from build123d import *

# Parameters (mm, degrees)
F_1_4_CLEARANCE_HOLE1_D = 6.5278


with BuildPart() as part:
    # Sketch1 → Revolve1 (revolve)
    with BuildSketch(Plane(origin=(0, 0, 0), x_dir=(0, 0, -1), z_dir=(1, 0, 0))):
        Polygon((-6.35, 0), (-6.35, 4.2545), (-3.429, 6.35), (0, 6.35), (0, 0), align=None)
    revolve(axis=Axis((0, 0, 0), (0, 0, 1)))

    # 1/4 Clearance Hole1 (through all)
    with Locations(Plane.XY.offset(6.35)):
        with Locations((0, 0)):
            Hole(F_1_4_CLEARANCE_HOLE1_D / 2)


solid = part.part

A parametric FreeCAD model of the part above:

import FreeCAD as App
import Part
import Sketcher
Q = App.Units.Quantity

doc = App.newDocument("Part")
body = doc.addObject("PartDesign::Body", "Body")

sketch1 = body.newObject("Sketcher::SketchObject", "Sketch")
sketch1.AttachmentSupport = (doc.getObject("YZ_Plane"), [""])
sketch1.MapMode = "FlatFace"
sketch1.addGeometry([
    Part.LineSegment(App.Vector(4.2545, 6.35, 0), App.Vector(0, 6.35, 0)),
    Part.LineSegment(App.Vector(0, 6.35, 0), App.Vector(0, 0, 0)),
    Part.LineSegment(App.Vector(0, 0, 0), App.Vector(6.35, 0, 0)),
    Part.LineSegment(App.Vector(6.35, 0, 0), App.Vector(6.35, 3.429, 0)),
    Part.LineSegment(App.Vector(6.35, 3.429, 0), App.Vector(4.2545, 6.35, 0)),
], False)
sketch1.addConstraint([
    Sketcher.Constraint("Coincident", 0, 2, 1, 1),
    Sketcher.Constraint("Coincident", 1, 2, 2, 1),
    Sketcher.Constraint("Coincident", 2, 2, 3, 1),
    Sketcher.Constraint("Coincident", 3, 2, 4, 1),
    Sketcher.Constraint("Coincident", 4, 2, 0, 1),
    Sketcher.Constraint("Horizontal", 0),
    Sketcher.Constraint("Vertical", 1),
    Sketcher.Constraint("Horizontal", 2),
    Sketcher.Constraint("Vertical", 3),
    Sketcher.Constraint("Coincident", 1, 2, -1, 1),
    Sketcher.Constraint("Equal", 2, 1),
    Sketcher.Constraint("DistanceX", 2, 1, 2, 2, Q("0.25 in")),
    Sketcher.Constraint("DistanceY", 3, 1, 3, 2, Q("0.135 in")),
    Sketcher.Constraint("DistanceX", 0, 2, 0, 1, Q("0.1675 in")),
])
revolution = body.newObject("PartDesign::Revolution", "Revolution")
revolution.Profile = sketch1
revolution.ReferenceAxis = (sketch1, ["V_Axis"])
revolution.Angle = 360

sketch2 = body.newObject("Sketcher::SketchObject", "Sketch001")
sketch2.AttachmentSupport = (doc.getObject("XY_Plane"), [""])
sketch2.MapMode = "FlatFace"
sketch2.AttachmentOffset = App.Placement(App.Vector(0, 0, 0.25 * 25.4), App.Rotation())
sketch2.addGeometry(Part.Circle(App.Vector(0, 0, 0), App.Vector(0, 0, 1), 3.2639), False)
sketch2.addConstraint([
    Sketcher.Constraint("Coincident", 0, 3, -1, 1),
    Sketcher.Constraint("Diameter", 0, Q("0.257 in")),
])
doc.recompute()
hole = body.newObject("PartDesign::Hole", "Hole")
hole.Profile = sketch2
hole.ThreadType = "None"
hole.Diameter = Q("0.257 in")
hole.DepthType = "ThroughAll"

doc.recompute()
